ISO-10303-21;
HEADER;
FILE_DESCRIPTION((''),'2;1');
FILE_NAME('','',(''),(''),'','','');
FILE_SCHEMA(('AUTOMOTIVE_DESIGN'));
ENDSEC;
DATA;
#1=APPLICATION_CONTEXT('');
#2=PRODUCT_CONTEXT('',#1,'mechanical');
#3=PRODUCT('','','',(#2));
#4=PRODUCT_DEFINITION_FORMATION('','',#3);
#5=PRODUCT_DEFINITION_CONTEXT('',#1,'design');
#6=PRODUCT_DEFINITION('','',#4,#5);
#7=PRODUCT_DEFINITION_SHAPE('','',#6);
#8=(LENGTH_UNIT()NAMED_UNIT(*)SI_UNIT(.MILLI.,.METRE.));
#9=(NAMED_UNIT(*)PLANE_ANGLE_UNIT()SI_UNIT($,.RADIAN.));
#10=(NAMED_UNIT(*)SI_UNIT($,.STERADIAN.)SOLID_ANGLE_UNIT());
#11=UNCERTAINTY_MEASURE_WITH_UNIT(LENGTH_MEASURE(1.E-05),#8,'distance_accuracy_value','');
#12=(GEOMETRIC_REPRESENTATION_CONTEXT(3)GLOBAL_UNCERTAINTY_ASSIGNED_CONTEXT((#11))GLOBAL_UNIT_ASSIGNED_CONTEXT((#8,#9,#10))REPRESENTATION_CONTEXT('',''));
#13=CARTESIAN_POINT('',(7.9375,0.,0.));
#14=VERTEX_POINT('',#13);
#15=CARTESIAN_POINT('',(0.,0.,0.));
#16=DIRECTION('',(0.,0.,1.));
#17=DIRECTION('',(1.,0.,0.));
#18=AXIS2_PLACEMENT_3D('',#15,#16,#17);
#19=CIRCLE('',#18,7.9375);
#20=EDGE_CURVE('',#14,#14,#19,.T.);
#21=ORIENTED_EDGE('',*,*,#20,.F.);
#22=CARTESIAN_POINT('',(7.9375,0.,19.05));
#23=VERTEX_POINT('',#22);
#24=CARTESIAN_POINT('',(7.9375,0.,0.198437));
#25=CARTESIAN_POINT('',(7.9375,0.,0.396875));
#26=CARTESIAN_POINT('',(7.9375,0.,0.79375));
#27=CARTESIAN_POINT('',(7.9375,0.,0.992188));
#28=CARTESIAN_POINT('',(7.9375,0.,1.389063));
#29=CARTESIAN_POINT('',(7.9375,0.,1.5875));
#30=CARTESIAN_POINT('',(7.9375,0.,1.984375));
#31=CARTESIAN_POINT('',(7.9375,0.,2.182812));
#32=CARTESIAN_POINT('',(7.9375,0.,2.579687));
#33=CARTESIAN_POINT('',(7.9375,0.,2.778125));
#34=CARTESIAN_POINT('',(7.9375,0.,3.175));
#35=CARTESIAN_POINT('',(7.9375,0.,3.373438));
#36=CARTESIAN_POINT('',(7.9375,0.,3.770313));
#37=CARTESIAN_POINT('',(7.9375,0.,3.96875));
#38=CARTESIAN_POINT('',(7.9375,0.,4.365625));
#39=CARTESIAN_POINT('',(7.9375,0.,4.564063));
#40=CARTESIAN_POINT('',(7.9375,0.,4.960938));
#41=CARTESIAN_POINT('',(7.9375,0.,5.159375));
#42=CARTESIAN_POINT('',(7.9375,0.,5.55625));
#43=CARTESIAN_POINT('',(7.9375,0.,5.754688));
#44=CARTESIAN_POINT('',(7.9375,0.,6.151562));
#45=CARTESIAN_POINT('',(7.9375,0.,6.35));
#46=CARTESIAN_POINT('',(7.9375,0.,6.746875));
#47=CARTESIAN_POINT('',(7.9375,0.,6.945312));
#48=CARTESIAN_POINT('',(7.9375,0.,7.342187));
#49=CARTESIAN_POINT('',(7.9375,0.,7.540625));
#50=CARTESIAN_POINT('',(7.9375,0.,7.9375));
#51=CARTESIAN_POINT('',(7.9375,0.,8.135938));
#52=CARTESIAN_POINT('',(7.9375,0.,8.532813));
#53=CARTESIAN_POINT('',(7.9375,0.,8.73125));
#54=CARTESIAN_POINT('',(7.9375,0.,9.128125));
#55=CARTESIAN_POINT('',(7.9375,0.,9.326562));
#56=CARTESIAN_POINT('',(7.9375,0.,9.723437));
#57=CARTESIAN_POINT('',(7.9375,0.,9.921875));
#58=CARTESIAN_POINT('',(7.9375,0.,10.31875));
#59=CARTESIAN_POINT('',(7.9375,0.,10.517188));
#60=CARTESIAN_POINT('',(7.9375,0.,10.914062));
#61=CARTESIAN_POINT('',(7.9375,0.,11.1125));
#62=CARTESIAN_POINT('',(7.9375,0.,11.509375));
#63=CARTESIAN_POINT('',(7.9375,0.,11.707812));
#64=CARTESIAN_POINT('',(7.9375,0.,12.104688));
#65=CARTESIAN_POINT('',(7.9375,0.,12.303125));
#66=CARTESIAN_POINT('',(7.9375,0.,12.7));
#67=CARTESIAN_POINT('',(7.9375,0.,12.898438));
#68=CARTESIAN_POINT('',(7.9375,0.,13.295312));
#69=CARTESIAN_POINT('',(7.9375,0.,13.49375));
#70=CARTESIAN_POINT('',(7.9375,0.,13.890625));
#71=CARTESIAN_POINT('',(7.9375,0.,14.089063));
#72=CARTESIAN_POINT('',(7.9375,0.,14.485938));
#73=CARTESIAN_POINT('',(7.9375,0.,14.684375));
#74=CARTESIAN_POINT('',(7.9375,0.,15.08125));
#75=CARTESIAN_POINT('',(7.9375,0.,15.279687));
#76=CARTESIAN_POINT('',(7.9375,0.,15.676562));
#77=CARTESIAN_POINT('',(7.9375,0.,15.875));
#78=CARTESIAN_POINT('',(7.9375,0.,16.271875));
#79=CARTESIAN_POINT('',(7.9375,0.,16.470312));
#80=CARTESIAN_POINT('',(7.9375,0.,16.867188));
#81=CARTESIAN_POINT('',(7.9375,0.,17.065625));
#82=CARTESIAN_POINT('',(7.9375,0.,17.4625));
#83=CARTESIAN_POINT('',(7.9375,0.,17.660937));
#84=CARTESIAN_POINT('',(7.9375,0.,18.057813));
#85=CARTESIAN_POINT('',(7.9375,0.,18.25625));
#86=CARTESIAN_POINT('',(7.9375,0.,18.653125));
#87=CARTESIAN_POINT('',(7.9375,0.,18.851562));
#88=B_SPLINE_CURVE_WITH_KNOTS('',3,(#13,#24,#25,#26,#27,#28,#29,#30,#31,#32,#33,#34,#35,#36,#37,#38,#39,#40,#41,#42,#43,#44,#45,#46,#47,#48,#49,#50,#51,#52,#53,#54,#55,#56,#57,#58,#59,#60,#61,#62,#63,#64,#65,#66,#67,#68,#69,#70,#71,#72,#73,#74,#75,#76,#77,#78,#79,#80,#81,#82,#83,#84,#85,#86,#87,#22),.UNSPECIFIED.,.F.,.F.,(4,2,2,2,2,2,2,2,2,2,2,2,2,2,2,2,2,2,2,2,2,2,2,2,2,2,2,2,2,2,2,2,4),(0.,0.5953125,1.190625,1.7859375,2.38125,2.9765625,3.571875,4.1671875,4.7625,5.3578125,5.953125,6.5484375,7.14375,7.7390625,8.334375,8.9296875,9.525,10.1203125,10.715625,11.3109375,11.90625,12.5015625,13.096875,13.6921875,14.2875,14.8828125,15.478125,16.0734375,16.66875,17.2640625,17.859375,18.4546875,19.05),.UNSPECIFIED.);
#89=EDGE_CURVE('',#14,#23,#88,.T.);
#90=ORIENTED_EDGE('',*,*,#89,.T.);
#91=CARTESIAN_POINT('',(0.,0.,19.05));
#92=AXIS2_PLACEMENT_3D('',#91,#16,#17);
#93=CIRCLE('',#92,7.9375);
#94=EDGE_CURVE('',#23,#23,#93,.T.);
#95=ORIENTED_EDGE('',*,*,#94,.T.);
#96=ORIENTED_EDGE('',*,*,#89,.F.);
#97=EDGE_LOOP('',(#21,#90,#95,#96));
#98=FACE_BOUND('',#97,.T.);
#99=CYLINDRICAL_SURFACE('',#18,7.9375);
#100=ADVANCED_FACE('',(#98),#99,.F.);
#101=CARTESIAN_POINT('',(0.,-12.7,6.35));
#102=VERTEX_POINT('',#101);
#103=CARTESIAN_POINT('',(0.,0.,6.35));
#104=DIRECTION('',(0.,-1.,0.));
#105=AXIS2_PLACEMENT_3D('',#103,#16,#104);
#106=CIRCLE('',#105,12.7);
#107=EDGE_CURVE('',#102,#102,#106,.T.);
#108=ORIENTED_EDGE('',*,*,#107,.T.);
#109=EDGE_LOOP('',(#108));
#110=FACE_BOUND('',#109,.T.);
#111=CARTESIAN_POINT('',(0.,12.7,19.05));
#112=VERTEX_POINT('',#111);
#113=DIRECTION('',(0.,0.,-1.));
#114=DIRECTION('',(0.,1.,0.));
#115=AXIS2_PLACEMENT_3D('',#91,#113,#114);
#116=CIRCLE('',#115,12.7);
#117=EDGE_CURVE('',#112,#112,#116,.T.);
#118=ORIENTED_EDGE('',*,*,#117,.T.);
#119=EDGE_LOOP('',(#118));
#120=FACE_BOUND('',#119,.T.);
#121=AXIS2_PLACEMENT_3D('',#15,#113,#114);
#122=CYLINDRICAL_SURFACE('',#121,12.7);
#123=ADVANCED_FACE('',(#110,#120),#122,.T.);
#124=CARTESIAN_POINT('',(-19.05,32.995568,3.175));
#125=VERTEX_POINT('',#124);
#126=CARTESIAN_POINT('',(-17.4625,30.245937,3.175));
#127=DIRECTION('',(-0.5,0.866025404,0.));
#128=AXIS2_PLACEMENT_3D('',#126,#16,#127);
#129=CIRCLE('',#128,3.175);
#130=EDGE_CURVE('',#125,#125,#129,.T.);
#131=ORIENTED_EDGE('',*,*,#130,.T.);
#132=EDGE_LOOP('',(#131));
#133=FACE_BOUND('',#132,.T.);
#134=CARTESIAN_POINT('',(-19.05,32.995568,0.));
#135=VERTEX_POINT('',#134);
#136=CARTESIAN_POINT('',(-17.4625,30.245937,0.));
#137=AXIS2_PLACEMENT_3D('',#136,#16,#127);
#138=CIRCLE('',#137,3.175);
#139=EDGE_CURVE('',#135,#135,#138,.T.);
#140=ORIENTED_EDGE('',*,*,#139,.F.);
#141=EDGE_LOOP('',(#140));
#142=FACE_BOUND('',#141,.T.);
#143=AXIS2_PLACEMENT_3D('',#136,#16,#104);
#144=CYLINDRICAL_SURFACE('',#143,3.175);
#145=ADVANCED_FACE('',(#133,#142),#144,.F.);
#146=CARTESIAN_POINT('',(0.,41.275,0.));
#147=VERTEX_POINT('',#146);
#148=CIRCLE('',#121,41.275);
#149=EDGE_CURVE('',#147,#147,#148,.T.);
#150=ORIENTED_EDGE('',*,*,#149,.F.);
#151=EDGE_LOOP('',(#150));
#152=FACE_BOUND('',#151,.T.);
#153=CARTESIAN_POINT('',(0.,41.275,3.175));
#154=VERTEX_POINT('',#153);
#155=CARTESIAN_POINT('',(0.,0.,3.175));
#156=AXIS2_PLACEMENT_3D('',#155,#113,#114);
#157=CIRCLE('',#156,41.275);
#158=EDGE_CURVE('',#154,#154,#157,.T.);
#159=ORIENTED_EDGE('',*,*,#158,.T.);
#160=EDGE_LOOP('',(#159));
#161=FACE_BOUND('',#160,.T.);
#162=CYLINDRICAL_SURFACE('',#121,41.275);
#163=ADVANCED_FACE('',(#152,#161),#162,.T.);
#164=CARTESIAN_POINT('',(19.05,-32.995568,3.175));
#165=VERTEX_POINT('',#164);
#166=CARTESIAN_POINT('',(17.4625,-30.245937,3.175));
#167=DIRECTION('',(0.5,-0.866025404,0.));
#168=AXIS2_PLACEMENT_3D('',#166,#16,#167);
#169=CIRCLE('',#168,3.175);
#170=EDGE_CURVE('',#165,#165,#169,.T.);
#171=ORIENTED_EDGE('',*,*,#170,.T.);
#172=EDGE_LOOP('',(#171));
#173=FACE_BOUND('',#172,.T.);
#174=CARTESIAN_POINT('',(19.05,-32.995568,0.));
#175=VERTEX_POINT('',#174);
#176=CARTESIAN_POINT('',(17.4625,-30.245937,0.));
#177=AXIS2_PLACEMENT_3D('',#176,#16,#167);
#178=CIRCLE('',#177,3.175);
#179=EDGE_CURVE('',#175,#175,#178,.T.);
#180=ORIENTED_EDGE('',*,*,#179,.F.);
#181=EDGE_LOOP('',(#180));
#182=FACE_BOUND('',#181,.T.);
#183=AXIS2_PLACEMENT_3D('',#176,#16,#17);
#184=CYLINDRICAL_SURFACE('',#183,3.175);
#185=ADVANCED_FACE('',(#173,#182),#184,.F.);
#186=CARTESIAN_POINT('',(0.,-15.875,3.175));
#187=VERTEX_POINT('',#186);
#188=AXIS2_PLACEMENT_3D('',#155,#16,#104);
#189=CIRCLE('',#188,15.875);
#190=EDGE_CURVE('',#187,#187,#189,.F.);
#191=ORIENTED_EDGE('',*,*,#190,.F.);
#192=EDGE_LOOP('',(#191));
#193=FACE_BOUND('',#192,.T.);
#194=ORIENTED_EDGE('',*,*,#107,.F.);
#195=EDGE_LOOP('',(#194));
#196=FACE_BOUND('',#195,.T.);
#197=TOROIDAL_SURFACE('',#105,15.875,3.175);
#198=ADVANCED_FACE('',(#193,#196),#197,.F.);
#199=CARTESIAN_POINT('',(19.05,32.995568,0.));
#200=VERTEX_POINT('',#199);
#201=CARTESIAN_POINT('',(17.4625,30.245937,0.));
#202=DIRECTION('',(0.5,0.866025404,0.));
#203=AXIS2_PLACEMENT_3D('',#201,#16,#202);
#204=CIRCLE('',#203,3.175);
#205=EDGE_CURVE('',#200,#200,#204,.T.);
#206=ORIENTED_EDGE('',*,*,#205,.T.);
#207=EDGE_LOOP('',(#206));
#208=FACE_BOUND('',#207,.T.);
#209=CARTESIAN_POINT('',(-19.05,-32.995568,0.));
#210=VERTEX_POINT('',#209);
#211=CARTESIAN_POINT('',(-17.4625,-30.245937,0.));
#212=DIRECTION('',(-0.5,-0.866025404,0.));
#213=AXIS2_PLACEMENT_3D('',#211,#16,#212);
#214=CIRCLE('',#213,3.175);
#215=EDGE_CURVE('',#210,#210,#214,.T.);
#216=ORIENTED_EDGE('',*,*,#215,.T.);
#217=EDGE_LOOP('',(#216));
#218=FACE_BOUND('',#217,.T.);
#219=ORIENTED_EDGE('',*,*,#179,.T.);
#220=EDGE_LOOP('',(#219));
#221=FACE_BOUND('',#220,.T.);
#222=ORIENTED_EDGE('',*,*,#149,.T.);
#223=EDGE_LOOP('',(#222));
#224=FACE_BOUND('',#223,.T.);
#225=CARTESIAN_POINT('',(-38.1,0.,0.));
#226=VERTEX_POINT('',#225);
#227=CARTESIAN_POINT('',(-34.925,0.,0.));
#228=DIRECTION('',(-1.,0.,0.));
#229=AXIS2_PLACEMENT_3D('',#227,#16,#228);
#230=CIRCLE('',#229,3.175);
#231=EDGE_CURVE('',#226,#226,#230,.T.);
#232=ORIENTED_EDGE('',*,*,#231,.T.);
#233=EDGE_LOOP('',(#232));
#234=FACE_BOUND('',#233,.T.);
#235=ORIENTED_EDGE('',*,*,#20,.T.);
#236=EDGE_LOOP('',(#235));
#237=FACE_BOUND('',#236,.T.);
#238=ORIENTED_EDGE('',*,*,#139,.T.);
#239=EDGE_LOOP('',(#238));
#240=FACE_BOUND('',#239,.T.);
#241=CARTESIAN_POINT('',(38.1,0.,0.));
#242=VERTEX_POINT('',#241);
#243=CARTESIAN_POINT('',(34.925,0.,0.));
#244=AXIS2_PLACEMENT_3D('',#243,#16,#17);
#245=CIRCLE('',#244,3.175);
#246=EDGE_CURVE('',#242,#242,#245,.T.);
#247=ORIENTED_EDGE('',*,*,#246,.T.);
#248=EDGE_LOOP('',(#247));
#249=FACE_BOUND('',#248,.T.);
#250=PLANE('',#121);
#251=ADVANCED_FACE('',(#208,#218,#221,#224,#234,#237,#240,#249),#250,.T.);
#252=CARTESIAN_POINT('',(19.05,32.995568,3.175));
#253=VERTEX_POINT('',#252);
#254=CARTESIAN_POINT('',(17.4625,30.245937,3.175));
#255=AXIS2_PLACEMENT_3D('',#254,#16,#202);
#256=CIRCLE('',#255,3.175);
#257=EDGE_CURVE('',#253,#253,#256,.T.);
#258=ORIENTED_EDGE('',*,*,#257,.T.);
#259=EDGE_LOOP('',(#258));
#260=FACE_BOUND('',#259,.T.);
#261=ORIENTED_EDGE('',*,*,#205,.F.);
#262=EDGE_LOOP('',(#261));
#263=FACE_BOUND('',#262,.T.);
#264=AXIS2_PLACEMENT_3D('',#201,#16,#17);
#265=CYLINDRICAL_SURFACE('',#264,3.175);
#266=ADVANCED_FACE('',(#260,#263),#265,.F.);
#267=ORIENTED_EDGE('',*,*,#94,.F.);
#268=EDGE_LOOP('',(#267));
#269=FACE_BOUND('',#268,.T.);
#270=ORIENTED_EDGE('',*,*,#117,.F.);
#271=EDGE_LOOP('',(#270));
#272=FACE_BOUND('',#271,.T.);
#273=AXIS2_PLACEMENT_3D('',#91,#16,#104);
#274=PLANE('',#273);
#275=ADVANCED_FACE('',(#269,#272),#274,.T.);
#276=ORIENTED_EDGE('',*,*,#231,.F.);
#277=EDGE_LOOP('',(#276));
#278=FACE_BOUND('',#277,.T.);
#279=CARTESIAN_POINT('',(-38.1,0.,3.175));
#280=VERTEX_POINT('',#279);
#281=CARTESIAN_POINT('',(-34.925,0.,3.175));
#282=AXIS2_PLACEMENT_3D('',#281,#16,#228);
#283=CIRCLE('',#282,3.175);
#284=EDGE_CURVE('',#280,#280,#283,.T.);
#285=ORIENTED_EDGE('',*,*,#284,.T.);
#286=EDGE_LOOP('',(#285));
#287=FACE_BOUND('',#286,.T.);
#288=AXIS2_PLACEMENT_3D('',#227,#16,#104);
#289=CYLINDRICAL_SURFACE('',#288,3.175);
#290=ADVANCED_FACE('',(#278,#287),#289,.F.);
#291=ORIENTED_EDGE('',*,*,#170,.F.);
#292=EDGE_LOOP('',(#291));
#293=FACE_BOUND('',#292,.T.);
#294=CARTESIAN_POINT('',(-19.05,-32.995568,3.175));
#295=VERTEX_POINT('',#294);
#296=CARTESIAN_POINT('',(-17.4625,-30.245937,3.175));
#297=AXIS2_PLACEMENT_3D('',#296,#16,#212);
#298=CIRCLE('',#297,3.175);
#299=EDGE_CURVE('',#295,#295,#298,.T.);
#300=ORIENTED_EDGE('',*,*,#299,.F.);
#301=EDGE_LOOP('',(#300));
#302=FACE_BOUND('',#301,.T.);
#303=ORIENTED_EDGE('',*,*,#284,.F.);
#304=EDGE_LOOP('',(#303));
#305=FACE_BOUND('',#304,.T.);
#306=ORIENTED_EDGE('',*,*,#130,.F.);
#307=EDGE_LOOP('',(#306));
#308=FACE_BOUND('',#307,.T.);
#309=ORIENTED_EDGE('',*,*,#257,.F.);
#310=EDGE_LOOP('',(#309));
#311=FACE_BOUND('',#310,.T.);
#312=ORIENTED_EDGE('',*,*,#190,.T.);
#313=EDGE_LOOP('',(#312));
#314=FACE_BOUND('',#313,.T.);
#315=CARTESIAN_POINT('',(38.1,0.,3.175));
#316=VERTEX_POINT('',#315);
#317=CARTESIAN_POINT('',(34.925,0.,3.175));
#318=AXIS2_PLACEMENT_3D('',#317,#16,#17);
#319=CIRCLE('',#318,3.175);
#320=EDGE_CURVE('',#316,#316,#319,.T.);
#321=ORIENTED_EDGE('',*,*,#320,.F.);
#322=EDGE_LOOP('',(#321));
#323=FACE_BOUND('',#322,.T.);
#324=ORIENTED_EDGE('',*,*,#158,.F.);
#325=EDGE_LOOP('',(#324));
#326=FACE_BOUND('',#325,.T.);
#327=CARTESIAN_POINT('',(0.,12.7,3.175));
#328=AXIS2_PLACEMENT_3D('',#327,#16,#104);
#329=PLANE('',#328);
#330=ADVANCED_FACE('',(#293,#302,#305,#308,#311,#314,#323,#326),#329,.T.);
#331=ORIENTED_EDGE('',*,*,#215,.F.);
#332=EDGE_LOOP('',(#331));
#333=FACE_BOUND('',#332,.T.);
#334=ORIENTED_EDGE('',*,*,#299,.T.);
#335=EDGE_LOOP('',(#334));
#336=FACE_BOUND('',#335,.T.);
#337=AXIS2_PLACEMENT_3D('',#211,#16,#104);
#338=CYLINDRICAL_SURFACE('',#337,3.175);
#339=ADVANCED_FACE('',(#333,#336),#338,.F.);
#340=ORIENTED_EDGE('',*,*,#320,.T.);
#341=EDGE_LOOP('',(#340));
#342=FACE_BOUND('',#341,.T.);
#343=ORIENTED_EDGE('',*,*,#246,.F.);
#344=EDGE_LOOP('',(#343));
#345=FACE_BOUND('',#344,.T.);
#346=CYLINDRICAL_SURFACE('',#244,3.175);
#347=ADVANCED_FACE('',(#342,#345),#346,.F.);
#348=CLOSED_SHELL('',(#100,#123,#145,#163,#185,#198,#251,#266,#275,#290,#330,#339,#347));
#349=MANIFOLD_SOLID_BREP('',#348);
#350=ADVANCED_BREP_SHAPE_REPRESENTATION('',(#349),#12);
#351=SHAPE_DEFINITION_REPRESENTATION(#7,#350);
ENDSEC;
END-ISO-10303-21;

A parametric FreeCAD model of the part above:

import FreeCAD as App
import Part
import Sketcher

V = App.Vector
Q = App.Units.Quantity


def edges_at(feature, points):
    """Names of the edges that pass closest to the given points."""
    edges = feature.Shape.Edges
    near = lambda p: min(range(len(edges)), key=lambda i: edges[i].distToShape(Part.Vertex(*p))[0])
    return sorted({f"Edge{near(p) + 1}" for p in points})


def add_polygon(sketch, points):
    """Adds a closed chain of lines whose ends are joined by coincident constraints."""
    first, n = sketch.GeometryCount, len(points)
    for a, b in zip(points, points[1:] + points[:1]):
        sketch.addGeometry(Part.LineSegment(App.Vector(*a, 0), App.Vector(*b, 0)), False)
    for i in range(n):
        sketch.addConstraint(Sketcher.Constraint("Coincident", first + i, 2, first + (i + 1) % n, 1))

doc = App.newDocument("Part")
body = doc.addObject("PartDesign::Body", "Body")

# Sketch on YZ plane
sketch1 = body.newObject("Sketcher::SketchObject", "Sketch")
sketch1.AttachmentSupport = (doc.getObject("YZ_Plane"), [""])
sketch1.MapMode = "FlatFace"
add_polygon(sketch1, [(0, 0), (41.275, 0), (41.275, 3.175), (12.7, 3.175), (12.7, 19.05), (0, 19.05)])  # lines 0-5
sketch1.addConstraint(Sketcher.Constraint("Horizontal", 0))
sketch1.addConstraint(Sketcher.Constraint("Vertical", 1))
sketch1.addConstraint(Sketcher.Constraint("Horizontal", 2))
sketch1.addConstraint(Sketcher.Constraint("Vertical", 3))
sketch1.addConstraint(Sketcher.Constraint("Horizontal", 4))
sketch1.addConstraint(Sketcher.Constraint("Vertical", 5))
sketch1.addConstraint(Sketcher.Constraint("Coincident", 5, 2, -1, 1))
sketch1.addConstraint(Sketcher.Constraint("DistanceX", 4, 2, 4, 1, Q("0.5 in")))
sketch1.addConstraint(Sketcher.Constraint("DistanceY", 5, 2, 5, 1, Q("0.75 in")))
sketch1.addConstraint(Sketcher.Constraint("DistanceX", 0, 1, 0, 2, Q("1.625 in")))
sketch1.addConstraint(Sketcher.Constraint("DistanceY", 1, 1, 1, 2, Q("0.125 in")))
revolution = body.newObject("PartDesign::Revolution", "Revolution")
revolution.Profile = sketch1
revolution.ReferenceAxis = (sketch1, ["V_Axis"])
revolution.Angle = 360

# Sketch on XY plane
sketch2 = body.newObject("Sketcher::SketchObject", "Sketch001")
sketch2.AttachmentSupport = (doc.getObject("XY_Plane"), [""])
sketch2.MapMode = "FlatFace"
sketch2.AttachmentOffset = App.Placement(V(0, 0, 0.75 * 25.4), App.Rotation())
sketch2.addGeometry(Part.Circle(V(0, 0, 0), V(0, 0, 1), 7.9375), False)
sketch2.addConstraint(Sketcher.Constraint("Coincident", 0, 3, -1, 1))
sketch2.addConstraint(Sketcher.Constraint("Diameter", 0, Q("0.625 in")))
pocket1 = body.newObject("PartDesign::Pocket", "Pocket")
pocket1.Profile = sketch2
pocket1.Type = "ThroughAll"

# Sketch on XY plane
sketch3 = body.newObject("Sketcher::SketchObject", "Sketch002")
sketch3.AttachmentSupport = (doc.getObject("XY_Plane"), [""])
sketch3.MapMode = "FlatFace"
sketch3.AttachmentOffset = App.Placement(V(0, 0, 0.125 * 25.4), App.Rotation())
sketch3.addGeometry(Part.Circle(V(34.925, 0, 0), V(0, 0, 1), 3.175), False)
sketch3.addConstraint(Sketcher.Constraint("PointOnObject", 0, 3, -1))
sketch3.addConstraint(Sketcher.Constraint("Diameter", 0, Q("0.25 in")))
sketch3.addConstraint(Sketcher.Constraint("DistanceX", -1, 1, 0, 3, Q("1.375 in")))
pocket2 = body.newObject("PartDesign::Pocket", "Pocket001")
pocket2.Profile = sketch3
pocket2.Type = "ThroughAll"
doc.recompute()

polarpattern = body.newObject("PartDesign::PolarPattern", "PolarPattern")
polarpattern.Originals = [pocket2]
polarpattern.Axis = (doc.getObject("Z_Axis"), [""])
polarpattern.Angle = 360
polarpattern.Occurrences = 6
body.Tip = polarpattern
doc.recompute()

fillet = body.newObject("PartDesign::Fillet", "Fillet")
fillet.Base = (polarpattern, edges_at(polarpattern, [(0, -12.7, 3.175)]))
fillet.Radius = Q("0.125 in")

doc.recompute()
